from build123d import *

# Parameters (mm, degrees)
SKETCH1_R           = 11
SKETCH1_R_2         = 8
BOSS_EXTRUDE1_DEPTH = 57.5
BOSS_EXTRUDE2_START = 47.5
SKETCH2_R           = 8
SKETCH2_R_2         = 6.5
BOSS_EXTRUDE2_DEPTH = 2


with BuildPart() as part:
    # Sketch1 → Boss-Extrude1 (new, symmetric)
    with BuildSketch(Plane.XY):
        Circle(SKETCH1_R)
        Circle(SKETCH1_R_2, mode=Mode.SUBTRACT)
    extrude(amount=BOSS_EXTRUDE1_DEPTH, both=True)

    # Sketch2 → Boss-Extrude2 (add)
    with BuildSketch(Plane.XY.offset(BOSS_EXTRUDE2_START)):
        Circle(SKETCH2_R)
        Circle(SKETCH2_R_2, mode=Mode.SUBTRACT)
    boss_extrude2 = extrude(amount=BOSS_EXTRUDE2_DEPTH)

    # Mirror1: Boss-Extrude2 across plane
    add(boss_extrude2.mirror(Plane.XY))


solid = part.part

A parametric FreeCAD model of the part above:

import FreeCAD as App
import Part
import Sketcher

V = App.Vector

doc = App.newDocument("Part")
body = doc.addObject("PartDesign::Body", "Body")

sketch1 = body.newObject("Sketcher::SketchObject", "Sketch")
sketch1.AttachmentSupport = (doc.getObject("XY_Plane"), [""])
sketch1.MapMode = "FlatFace"
sketch1.addGeometry(Part.Circle(V(0, 0, 0), V(0, 0, 1), 11), False)
sketch1.addGeometry(Part.Circle(V(0, 0, 0), V(0, 0, 1), 8), False)
sketch1.addConstraint(Sketcher.Constraint("Coincident", 0, 3, -1, 1))
sketch1.addConstraint(Sketcher.Constraint("Coincident", 1, 3, -1, 1))
sketch1.addConstraint(Sketcher.Constraint("Diameter", 0, 22.0))
sketch1.addConstraint(Sketcher.Constraint("Diameter", 1, 16.0))
pad1 = body.newObject("PartDesign::Pad", "Pad")
pad1.Profile = sketch1
pad1.Length = 115
pad1.Midplane = True

sketch2 = body.newObject("Sketcher::SketchObject", "Sketch001")
sketch2.AttachmentSupport = (doc.getObject("XY_Plane"), [""])
sketch2.MapMode = "FlatFace"
sketch2.AttachmentOffset = App.Placement(V(0, 0, 47.5), App.Rotation())
sketch2.addGeometry(Part.Circle(V(0, 0, 0), V(0, 0, 1), 8), False)
sketch2.addGeometry(Part.Circle(V(0, 0, 0), V(0, 0, 1), 6), False)
sketch2.addConstraint(Sketcher.Constraint("Coincident", 0, 3, -1, 1))
sketch2.addConstraint(Sketcher.Constraint("Coincident", 1, 3, -1, 1))
sketch2.addConstraint(Sketcher.Constraint("Diameter", 0, 16.0))
sketch2.addConstraint(Sketcher.Constraint("Diameter", 1, 13.0))
pad2 = body.newObject("PartDesign::Pad", "Pad001")
pad2.Profile = sketch2
pad2.Length = 2
doc.recompute()

mirrored = body.newObject("PartDesign::Mirrored", "Mirrored")
mirrored.Originals = [pad2]
mirrored.MirrorPlane = (doc.getObject("XY_Plane"), [""])
body.Tip = mirrored

doc.recompute()
